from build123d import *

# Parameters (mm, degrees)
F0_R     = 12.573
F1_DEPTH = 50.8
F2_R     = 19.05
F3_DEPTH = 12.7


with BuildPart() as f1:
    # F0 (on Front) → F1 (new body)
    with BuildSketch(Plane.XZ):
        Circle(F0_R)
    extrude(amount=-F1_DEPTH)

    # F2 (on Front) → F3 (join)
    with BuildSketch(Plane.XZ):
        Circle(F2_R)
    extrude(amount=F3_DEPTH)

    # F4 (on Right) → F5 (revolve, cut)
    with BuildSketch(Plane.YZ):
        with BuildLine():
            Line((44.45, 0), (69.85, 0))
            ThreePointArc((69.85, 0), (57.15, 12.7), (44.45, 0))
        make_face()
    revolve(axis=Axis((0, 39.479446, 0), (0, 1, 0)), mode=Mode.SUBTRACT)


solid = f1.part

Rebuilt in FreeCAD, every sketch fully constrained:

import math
import FreeCAD as App
import Part
import Sketcher

V = App.Vector
Q = App.Units.Quantity

doc = App.newDocument("Part")
body = doc.addObject("PartDesign::Body", "Body")

# Sketch on XZ plane
sketch1 = body.newObject("Sketcher::SketchObject", "Sketch")
sketch1.AttachmentSupport = (doc.getObject("XZ_Plane"), [""])
sketch1.MapMode = "FlatFace"
sketch1.addGeometry(Part.Circle(V(0, 0, 0), V(0, 0, 1), 12.573), False)
sketch1.addConstraint([
    Sketcher.Constraint("Coincident", 0, 3, -1, 1),
    Sketcher.Constraint("Diameter", 0, Q("0.99 in")),
])
pad1 = body.newObject("PartDesign::Pad", "Pad")
pad1.Profile = sketch1
pad1.Length = Q("2 in")
pad1.Reversed = True

# Sketch on XZ plane
sketch2 = body.newObject("Sketcher::SketchObject", "Sketch001")
sketch2.AttachmentSupport = (doc.getObject("XZ_Plane"), [""])
sketch2.MapMode = "FlatFace"
sketch2.addGeometry(Part.Circle(V(0, 0, 0), V(0, 0, 1), 19.05), False)
sketch2.addConstraint([
    Sketcher.Constraint("Coincident", 0, 3, -1, 1),
    Sketcher.Constraint("Diameter", 0, Q("1.5 in")),
])
pad2 = body.newObject("PartDesign::Pad", "Pad001")
pad2.Profile = sketch2
pad2.Length = Q("0.5 in")

# Sketch on YZ plane
sketch3 = body.newObject("Sketcher::SketchObject", "Sketch002")
sketch3.AttachmentSupport = (doc.getObject("YZ_Plane"), [""])
sketch3.MapMode = "FlatFace"
sketch3.addGeometry([
    Part.LineSegment(V(44.45, 0, 0), V(69.85, 0, 0)),
    Part.ArcOfCircle(Part.Circle(V(57.15, 0, 0), V(0, 0, 1), 12.7), math.radians(0), math.radians(180)),
], False)
sketch3.addConstraint([
    Sketcher.Constraint("Coincident", 0, 1, 1, 2),
    Sketcher.Constraint("Coincident", 1, 1, 0, 2),
    Sketcher.Constraint("Horizontal", 0),
    Sketcher.Constraint("PointOnObject", 1, 3, -1),
    Sketcher.Constraint("PointOnObject", 0, 1, -1),
    Sketcher.Constraint("Radius", 1, Q("0.5 in")),
    Sketcher.Constraint("DistanceX", -1, 1, 1, 3, Q("2.25 in")),
])
groove = body.newObject("PartDesign::Groove", "Groove")
groove.Profile = sketch3
groove.ReferenceAxis = (sketch3, ["H_Axis"])
groove.Angle = 360

doc.recompute()
